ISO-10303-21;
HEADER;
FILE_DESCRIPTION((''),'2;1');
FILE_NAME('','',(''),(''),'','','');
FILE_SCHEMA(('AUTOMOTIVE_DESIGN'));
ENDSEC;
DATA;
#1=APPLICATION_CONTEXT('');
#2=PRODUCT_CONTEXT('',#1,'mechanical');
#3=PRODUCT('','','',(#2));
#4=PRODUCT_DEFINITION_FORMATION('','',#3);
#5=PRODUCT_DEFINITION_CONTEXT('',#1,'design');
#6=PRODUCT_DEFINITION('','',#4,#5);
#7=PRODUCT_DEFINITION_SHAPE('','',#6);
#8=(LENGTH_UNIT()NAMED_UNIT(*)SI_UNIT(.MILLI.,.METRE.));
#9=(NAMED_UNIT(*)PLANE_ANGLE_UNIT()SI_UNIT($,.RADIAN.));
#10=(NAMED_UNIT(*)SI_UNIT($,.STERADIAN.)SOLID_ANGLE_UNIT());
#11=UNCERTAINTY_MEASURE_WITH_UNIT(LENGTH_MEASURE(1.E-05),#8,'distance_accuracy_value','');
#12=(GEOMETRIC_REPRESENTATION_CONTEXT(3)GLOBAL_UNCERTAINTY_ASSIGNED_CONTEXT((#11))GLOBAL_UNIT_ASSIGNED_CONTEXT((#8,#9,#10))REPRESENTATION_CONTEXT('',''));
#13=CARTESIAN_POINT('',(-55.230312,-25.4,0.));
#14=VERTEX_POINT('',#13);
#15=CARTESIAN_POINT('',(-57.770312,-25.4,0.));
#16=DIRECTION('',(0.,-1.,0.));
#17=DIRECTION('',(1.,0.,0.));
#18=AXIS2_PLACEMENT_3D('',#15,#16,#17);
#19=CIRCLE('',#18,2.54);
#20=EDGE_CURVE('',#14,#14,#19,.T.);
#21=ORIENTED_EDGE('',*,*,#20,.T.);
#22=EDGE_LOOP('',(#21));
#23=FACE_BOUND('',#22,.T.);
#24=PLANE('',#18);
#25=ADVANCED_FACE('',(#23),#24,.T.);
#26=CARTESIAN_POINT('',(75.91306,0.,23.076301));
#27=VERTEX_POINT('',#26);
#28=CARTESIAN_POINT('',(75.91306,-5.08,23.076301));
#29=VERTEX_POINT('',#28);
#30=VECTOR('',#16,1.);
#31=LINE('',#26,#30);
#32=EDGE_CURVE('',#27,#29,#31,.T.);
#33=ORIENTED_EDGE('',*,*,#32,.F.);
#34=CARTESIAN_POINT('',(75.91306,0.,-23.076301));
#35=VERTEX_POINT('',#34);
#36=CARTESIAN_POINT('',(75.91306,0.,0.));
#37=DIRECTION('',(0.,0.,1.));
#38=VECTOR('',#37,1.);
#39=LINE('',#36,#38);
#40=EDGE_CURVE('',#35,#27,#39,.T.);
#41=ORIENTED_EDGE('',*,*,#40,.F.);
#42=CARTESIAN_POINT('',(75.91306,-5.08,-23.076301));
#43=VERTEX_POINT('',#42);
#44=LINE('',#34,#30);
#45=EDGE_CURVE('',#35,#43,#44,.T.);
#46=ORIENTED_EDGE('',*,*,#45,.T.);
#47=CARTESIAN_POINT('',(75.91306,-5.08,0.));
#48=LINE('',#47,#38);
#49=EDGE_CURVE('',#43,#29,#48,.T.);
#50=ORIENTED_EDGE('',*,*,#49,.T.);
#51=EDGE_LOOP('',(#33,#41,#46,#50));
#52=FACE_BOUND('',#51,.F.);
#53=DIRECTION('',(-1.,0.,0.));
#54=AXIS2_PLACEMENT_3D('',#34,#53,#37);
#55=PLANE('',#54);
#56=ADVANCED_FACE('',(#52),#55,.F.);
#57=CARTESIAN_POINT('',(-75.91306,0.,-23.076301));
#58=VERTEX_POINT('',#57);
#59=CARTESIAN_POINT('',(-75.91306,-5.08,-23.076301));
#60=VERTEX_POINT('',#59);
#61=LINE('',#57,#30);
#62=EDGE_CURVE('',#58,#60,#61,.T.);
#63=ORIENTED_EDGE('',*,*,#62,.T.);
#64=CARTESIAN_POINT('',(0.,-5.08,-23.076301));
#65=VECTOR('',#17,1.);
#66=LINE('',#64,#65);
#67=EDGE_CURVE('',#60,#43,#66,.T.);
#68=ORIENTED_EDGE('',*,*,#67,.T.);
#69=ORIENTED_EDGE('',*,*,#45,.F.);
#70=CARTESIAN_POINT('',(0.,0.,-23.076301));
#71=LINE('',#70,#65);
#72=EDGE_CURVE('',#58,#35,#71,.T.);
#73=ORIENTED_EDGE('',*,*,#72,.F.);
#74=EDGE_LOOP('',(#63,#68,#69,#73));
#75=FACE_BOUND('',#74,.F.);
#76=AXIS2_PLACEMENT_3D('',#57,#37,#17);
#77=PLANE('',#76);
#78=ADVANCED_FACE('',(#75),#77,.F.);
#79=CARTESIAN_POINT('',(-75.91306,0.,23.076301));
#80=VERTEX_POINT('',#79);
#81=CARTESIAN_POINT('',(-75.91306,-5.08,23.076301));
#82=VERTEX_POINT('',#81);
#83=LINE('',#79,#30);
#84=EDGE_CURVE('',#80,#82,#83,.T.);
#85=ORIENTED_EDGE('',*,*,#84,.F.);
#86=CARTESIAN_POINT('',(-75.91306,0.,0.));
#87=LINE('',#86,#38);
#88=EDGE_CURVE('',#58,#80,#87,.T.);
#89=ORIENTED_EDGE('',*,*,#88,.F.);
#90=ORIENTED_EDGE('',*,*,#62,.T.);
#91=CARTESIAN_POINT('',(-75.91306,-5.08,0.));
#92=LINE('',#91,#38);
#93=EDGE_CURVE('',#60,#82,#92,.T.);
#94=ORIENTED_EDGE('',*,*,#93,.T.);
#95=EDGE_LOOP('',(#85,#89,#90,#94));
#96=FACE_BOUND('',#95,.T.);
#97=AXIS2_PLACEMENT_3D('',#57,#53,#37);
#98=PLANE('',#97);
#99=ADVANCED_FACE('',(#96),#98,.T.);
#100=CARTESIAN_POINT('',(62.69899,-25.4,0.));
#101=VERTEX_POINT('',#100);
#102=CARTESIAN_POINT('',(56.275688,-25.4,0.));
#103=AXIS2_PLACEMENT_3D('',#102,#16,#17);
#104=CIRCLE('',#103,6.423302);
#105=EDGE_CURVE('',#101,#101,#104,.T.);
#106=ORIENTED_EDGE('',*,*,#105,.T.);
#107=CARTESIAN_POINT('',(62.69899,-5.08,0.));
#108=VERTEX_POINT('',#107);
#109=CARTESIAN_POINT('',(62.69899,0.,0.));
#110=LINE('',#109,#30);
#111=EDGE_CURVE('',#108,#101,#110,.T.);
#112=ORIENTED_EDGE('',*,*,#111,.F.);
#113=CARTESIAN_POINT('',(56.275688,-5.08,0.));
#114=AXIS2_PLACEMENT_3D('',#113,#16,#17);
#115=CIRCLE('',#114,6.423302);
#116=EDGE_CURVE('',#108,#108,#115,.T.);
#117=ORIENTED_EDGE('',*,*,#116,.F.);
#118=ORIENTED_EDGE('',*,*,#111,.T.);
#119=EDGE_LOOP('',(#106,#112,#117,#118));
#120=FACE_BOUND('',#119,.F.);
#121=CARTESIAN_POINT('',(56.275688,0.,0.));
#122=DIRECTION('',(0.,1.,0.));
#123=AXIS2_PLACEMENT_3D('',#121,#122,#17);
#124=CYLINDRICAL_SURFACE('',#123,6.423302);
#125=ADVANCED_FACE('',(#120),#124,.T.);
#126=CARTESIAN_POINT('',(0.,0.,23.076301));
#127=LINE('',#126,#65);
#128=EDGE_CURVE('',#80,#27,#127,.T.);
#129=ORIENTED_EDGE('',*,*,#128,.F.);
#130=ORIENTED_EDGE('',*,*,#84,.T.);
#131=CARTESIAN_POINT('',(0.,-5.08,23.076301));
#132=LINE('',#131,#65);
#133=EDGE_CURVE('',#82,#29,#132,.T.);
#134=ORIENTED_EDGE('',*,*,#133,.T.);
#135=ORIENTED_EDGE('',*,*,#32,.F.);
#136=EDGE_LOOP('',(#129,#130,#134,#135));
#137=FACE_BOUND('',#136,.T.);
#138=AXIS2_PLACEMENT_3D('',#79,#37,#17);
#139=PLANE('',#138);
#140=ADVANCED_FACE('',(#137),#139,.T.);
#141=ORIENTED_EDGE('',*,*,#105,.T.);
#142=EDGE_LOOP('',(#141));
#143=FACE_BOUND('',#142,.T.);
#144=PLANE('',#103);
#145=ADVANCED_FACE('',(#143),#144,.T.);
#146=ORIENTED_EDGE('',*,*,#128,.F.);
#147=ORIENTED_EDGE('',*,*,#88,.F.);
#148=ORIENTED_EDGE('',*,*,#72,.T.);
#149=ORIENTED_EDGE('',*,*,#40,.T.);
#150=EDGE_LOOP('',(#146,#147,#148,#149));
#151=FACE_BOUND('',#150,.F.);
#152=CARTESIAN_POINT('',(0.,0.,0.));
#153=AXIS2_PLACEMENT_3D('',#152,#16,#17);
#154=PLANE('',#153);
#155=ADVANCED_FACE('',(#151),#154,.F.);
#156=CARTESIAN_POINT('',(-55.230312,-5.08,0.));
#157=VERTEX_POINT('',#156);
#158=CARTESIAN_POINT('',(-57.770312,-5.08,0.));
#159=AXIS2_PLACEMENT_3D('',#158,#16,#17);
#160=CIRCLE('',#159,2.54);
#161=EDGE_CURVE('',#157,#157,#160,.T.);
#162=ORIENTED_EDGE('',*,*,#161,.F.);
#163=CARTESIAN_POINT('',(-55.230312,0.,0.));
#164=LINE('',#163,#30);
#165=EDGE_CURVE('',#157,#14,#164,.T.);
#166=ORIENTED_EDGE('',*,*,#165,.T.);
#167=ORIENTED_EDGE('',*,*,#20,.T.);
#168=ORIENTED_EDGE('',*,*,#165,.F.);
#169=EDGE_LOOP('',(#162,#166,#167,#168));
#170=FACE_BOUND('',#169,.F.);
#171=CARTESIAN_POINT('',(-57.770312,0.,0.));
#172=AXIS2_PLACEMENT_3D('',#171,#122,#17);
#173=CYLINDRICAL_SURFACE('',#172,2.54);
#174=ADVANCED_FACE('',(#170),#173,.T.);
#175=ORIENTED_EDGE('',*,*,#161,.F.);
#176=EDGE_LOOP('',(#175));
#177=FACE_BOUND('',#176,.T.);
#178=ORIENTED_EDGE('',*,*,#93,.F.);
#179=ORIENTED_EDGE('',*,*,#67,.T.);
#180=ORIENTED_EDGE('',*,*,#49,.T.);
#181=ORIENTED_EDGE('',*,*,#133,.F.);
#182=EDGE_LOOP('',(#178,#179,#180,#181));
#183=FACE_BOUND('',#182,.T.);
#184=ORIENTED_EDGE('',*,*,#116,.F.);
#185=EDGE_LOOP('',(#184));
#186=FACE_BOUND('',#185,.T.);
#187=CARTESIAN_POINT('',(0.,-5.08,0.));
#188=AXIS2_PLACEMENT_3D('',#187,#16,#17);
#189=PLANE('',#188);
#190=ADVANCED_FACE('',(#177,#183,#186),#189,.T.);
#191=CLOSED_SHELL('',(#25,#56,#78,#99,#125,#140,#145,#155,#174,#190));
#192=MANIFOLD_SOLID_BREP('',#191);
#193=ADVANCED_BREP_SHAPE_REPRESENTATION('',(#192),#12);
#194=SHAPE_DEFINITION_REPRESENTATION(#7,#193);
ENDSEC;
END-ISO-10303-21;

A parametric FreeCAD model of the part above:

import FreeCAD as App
import Part
import Sketcher
from FreeCAD import Vector
Q = App.Units.Quantity

doc = App.newDocument("Part")
body = doc.addObject("PartDesign::Body", "Body")

# Sketch on XZ plane
sketch1 = body.newObject("Sketcher::SketchObject", "Sketch")
sketch1.AttachmentSupport = (doc.getObject("XZ_Plane"), [""])
sketch1.MapMode = "FlatFace"
sketch1.addGeometry([
    Part.LineSegment(Vector(-75.91306, 23.076301, 0), Vector(-75.91306, -23.076301, 0)),  # 0
    Part.LineSegment(Vector(-75.91306, -23.076301, 0), Vector(75.91306, -23.076301, 0)),  # 1
    Part.LineSegment(Vector(75.91306, -23.076301, 0), Vector(75.91306, 23.076301, 0)),  # 2
    Part.LineSegment(Vector(75.91306, 23.076301, 0), Vector(-75.91306, 23.076301, 0)),  # 3
    Part.Circle(Vector(-57.770312, 0, 0), Vector(0, 0, 1), 2.54),  # 4
    Part.Circle(Vector(56.275688, 0, 0), Vector(0, 0, 1), 6.423302),  # 5
], False)
sketch1.addConstraint([
    Sketcher.Constraint("Coincident", 0, 2, 1, 1),
    Sketcher.Constraint("Coincident", 1, 2, 2, 1),
    Sketcher.Constraint("Coincident", 2, 2, 3, 1),
    Sketcher.Constraint("Coincident", 3, 2, 0, 1),
    Sketcher.Constraint("Vertical", 0),
    Sketcher.Constraint("Horizontal", 1),
    Sketcher.Constraint("Vertical", 2),
    Sketcher.Constraint("Horizontal", 3),
    Sketcher.Constraint("Symmetric", 0, 2, 2, 2, -1, 1),
    Sketcher.Constraint("PointOnObject", 4, 3, -1),
    Sketcher.Constraint("PointOnObject", 5, 3, -1),
    Sketcher.Constraint("Diameter", 4, Q("0.2 in")),
    Sketcher.Constraint("DistanceX", 4, 3, 5, 3, Q("4.49 in")),
    Sketcher.Constraint("Diameter", 5, Q("12.846604 mm")),
    Sketcher.Constraint("DistanceX", 1, 1, 1, 2, Q("151.82612 mm")),
    Sketcher.Constraint("DistanceY", 0, 2, -1, 1, Q("23.076301 mm")),
    Sketcher.Constraint("DistanceX", 4, 3, -1, 1, Q("57.770312 mm")),
])
pad1 = body.newObject("PartDesign::Pad", "Pad")
pad1.Profile = sketch1
pad1.Length = Q("0.2 in")

# Sketch on XZ plane
sketch2 = body.newObject("Sketcher::SketchObject", "Sketch001")
sketch2.AttachmentSupport = (doc.getObject("XZ_Plane"), [""])
sketch2.MapMode = "FlatFace"
sketch2.addGeometry([
    Part.Circle(Vector(-57.770312, 0, 0), Vector(0, 0, 1), 2.54),
    Part.Circle(Vector(56.275688, 0, 0), Vector(0, 0, 1), 6.423302),
], False)
sketch2.addConstraint([
    Sketcher.Constraint("PointOnObject", 0, 3, -1),
    Sketcher.Constraint("PointOnObject", 1, 3, -1),
    Sketcher.Constraint("Diameter", 0, Q("0.2 in")),
    Sketcher.Constraint("DistanceX", 0, 3, 1, 3, Q("4.49 in")),
    Sketcher.Constraint("Diameter", 1, Q("12.846604 mm")),
    Sketcher.Constraint("DistanceX", 0, 3, -1, 1, Q("57.770312 mm")),
])
pad2 = body.newObject("PartDesign::Pad", "Pad001")
pad2.Profile = sketch2
pad2.Length = Q("1 in")

doc.recompute()
